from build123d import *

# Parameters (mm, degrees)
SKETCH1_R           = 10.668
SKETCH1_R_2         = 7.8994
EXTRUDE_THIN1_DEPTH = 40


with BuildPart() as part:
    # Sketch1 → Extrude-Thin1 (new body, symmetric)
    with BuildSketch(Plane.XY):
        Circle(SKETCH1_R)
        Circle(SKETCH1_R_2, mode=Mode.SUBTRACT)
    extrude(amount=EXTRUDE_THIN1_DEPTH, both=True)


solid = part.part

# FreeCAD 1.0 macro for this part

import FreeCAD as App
import Part
import Sketcher
from FreeCAD import Vector
Q = App.Units.Quantity

doc = App.newDocument("Part")
params = doc.addObject("Spreadsheet::Sheet", "Params")
for row, (alias, value) in enumerate([
    ("sketch1_diameter", "0.84 in"),
    ("sketch1_diameter2", "0.622 in"),
    ("pad1_length", "80 mm"),
], start=1):
    params.set(f"A{row}", alias)
    params.set(f"B{row}", "=" + value)
    params.setAlias(f"B{row}", alias)

body = doc.addObject("PartDesign::Body", "Body")

# Sketch on XY plane
sketch1 = body.newObject("Sketcher::SketchObject", "Sketch")
sketch1.AttachmentSupport = (doc.getObject("XY_Plane"), [""])
sketch1.MapMode = "FlatFace"
sketch1.addGeometry(Part.Circle(Vector(0, 0, 0), Vector(0, 0, 1), 11), False)
sketch1.addGeometry(Part.Circle(Vector(0, 0, 0), Vector(0, 0, 1), 8), False)
sketch1.addConstraint(Sketcher.Constraint("Coincident", 0, 3, -1, 1))
sketch1.addConstraint(Sketcher.Constraint("Coincident", 1, 3, -1, 1))
sketch1.addConstraint(Sketcher.Constraint("Diameter", 0, Q("0.84 in")))
sketch1.addConstraint(Sketcher.Constraint("Diameter", 1, Q("0.622 in")))
sketch1.setExpression("Constraints[2]", "Params.sketch1_diameter")
sketch1.setExpression("Constraints[3]", "Params.sketch1_diameter2")
pad1 = body.newObject("PartDesign::Pad", "Pad")
pad1.Profile = sketch1
pad1.setExpression("Length", "Params.pad1_length")
pad1.Midplane = True

doc.recompute()
